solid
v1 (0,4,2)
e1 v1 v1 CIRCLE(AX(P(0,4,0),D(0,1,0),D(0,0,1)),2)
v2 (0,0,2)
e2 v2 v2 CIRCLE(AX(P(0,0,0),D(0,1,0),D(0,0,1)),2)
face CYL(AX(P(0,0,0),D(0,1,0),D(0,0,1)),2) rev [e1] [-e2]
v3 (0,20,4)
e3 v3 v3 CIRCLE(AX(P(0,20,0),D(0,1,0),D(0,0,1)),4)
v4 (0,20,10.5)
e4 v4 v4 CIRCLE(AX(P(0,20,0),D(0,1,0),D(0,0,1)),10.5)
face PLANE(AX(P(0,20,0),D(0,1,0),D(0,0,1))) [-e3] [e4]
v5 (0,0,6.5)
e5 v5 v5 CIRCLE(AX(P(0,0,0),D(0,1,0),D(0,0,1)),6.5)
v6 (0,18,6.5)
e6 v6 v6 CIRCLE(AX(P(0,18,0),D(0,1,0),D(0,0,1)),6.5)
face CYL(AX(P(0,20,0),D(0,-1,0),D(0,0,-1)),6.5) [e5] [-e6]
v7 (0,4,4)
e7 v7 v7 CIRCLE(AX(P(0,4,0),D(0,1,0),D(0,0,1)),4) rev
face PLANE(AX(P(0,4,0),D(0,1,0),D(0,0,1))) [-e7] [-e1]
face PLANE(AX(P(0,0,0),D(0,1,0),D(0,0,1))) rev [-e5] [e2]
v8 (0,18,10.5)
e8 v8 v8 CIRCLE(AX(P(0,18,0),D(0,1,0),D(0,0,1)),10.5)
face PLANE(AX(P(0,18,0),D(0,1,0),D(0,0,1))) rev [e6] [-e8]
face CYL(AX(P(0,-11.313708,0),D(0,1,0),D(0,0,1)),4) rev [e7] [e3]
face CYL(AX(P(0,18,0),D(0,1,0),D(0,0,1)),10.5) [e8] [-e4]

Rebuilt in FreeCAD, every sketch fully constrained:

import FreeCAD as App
import Part
import Sketcher

doc = App.newDocument("Part")
body = doc.addObject("PartDesign::Body", "Body")

# Sketch on XZ plane
sketch1 = doc.addObject("Sketcher::SketchObject", "Sketch")
body.addObject(sketch1)
sketch1.AttachmentSupport = (doc.XZ_Plane, [""])
sketch1.MapMode = "FlatFace"
sketch1.addGeometry(Part.Circle(App.Vector(0, 0, 0), App.Vector(0, 0, 1), 6), False)
sketch1.addConstraint(Sketcher.Constraint("Coincident", 0, 3, -1, 1))
sketch1.addConstraint(Sketcher.Constraint("Diameter", 0, 13.0))
pad1 = doc.addObject("PartDesign::Pad", "Pad")
body.addObject(pad1)
pad1.Profile = sketch1
pad1.Length = 20
pad1.Reversed = True

# Sketch on XZ plane
sketch2 = doc.addObject("Sketcher::SketchObject", "Sketch001")
body.addObject(sketch2)
sketch2.AttachmentSupport = (doc.XZ_Plane, [""])
sketch2.MapMode = "FlatFace"
sketch2.AttachmentOffset = App.Placement(App.Vector(0, 0, -20), App.Rotation())
sketch2.addGeometry(Part.Circle(App.Vector(0, 0, 0), App.Vector(0, 0, 1), 4), False)
sketch2.addConstraint(Sketcher.Constraint("Coincident", 0, 3, -1, 1))
sketch2.addConstraint(Sketcher.Constraint("Diameter", 0, 8.0))
pocket1 = doc.addObject("PartDesign::Pocket", "Pocket")
body.addObject(pocket1)
pocket1.Profile = sketch2
pocket1.Length = 16
pocket1.Reversed = True

# Sketch on XZ plane
sketch3 = doc.addObject("Sketcher::SketchObject", "Sketch002")
body.addObject(sketch3)
sketch3.AttachmentSupport = (doc.XZ_Plane, [""])
sketch3.MapMode = "FlatFace"
sketch3.AttachmentOffset = App.Placement(App.Vector(0, 0, -4), App.Rotation())
sketch3.addGeometry(Part.Circle(App.Vector(0, 0, 0), App.Vector(0, 0, 1), 2), False)
sketch3.addConstraint(Sketcher.Constraint("Coincident", 0, 3, -1, 1))
sketch3.addConstraint(Sketcher.Constraint("Diameter", 0, 4.0))
pocket2 = doc.addObject("PartDesign::Pocket", "Pocket001")
body.addObject(pocket2)
pocket2.Profile = sketch3
pocket2.Type = "ThroughAll"
pocket2.Reversed = True

# Sketch on XZ plane
sketch4 = doc.addObject("Sketcher::SketchObject", "Sketch003")
body.addObject(sketch4)
sketch4.AttachmentSupport = (doc.XZ_Plane, [""])
sketch4.MapMode = "FlatFace"
sketch4.AttachmentOffset = App.Placement(App.Vector(0, 0, -20), App.Rotation())
sketch4.addGeometry(Part.Circle(App.Vector(0, 0, 0), App.Vector(0, 0, 1), 10), False)
sketch4.addGeometry(Part.Circle(App.Vector(0, 0, 0), App.Vector(0, 0, 1), 6), False)
sketch4.addConstraint(Sketcher.Constraint("Coincident", 0, 3, -1, 1))
sketch4.addConstraint(Sketcher.Constraint("Coincident", 1, 3, -1, 1))
sketch4.addConstraint(Sketcher.Constraint("Diameter", 0, 21.0))
sketch4.addConstraint(Sketcher.Constraint("Diameter", 1, 13.0))
pad2 = doc.addObject("PartDesign::Pad", "Pad001")
body.addObject(pad2)
pad2.Profile = sketch4
pad2.Length = 2

doc.recompute()
